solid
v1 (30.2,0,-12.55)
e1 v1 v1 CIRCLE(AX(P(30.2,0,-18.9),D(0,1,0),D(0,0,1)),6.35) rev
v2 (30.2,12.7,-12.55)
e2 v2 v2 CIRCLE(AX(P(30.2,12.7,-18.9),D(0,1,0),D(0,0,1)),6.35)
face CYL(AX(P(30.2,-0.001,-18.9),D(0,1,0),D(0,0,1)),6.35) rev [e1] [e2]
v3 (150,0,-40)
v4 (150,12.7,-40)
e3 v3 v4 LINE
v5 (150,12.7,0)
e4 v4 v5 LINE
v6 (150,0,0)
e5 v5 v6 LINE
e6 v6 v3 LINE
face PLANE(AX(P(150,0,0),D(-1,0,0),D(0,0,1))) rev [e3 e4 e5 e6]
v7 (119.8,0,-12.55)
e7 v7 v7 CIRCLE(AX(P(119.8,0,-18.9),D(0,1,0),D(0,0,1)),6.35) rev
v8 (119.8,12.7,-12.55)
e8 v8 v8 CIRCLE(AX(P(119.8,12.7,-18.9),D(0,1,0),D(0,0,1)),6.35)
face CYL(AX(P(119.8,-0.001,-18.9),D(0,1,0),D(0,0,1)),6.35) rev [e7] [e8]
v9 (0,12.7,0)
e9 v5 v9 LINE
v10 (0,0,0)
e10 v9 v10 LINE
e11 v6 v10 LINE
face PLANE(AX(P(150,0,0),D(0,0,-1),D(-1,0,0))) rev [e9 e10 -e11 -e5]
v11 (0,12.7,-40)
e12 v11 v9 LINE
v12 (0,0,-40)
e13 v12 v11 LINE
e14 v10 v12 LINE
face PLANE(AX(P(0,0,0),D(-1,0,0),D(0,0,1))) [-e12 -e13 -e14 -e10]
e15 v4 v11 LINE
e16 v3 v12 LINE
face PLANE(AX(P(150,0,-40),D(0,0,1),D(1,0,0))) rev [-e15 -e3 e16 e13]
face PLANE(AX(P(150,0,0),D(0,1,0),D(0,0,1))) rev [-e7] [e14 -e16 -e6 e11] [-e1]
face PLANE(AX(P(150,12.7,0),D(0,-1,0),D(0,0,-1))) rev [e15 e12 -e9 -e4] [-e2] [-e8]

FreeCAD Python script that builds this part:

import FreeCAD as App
import Part
import Sketcher
from FreeCAD import Vector

doc = App.newDocument("Part")
body = doc.addObject("PartDesign::Body", "Body")

# Sketch on YZ plane
sketch1 = doc.addObject("Sketcher::SketchObject", "Sketch")
body.addObject(sketch1)
sketch1.AttachmentSupport = (doc.YZ_Plane, [""])
sketch1.MapMode = "FlatFace"
sketch1.addGeometry(Part.LineSegment(Vector(12.7, 0, 0), Vector(0, 0, 0)), False)
sketch1.addGeometry(Part.LineSegment(Vector(0, 0, 0), Vector(0, -40, 0)), False)
sketch1.addGeometry(Part.LineSegment(Vector(0, -40, 0), Vector(12.7, -40, 0)), False)
sketch1.addGeometry(Part.LineSegment(Vector(12.7, -40, 0), Vector(12.7, 0, 0)), False)
sketch1.addConstraint(Sketcher.Constraint("Coincident", 0, 2, 1, 1))
sketch1.addConstraint(Sketcher.Constraint("Coincident", 1, 2, 2, 1))
sketch1.addConstraint(Sketcher.Constraint("Coincident", 2, 2, 3, 1))
sketch1.addConstraint(Sketcher.Constraint("Coincident", 3, 2, 0, 1))
sketch1.addConstraint(Sketcher.Constraint("Horizontal", 0))
sketch1.addConstraint(Sketcher.Constraint("Vertical", 1))
sketch1.addConstraint(Sketcher.Constraint("Horizontal", 2))
sketch1.addConstraint(Sketcher.Constraint("Vertical", 3))
sketch1.addConstraint(Sketcher.Constraint("Coincident", 0, 2, -1, 1))
sketch1.addConstraint(Sketcher.Constraint("DistanceY", 1, 2, 1, 1, 40.0))
sketch1.addConstraint(Sketcher.Constraint("DistanceX", 0, 2, 0, 1, 12.7))
pad1 = doc.addObject("PartDesign::Pad", "Pad")
body.addObject(pad1)
pad1.Profile = sketch1
pad1.Length = 150

# Sketch on XZ plane
sketch2 = doc.addObject("Sketcher::SketchObject", "Sketch001")
body.addObject(sketch2)
sketch2.AttachmentSupport = (doc.XZ_Plane, [""])
sketch2.MapMode = "FlatFace"
sketch2.AttachmentOffset = App.Placement(Vector(0, 0, -12.7), App.Rotation())
sketch2.addGeometry(Part.Circle(Vector(30.2, -18.9, 0), Vector(0, 0, 1), 6.35), False)
sketch2.addConstraint(Sketcher.Constraint("Diameter", 0, 12.7))
sketch2.addConstraint(Sketcher.Constraint("DistanceX", -1, 1, 0, 3, 30.2))
sketch2.addConstraint(Sketcher.Constraint("DistanceY", 0, 3, -1, 1, 18.9))
pocket1 = doc.addObject("PartDesign::Pocket", "Pocket")
body.addObject(pocket1)
pocket1.Profile = sketch2
pocket1.Type = "UpToFirst"
pocket1.Reversed = True

# Sketch on XZ plane
sketch3 = doc.addObject("Sketcher::SketchObject", "Sketch002")
body.addObject(sketch3)
sketch3.AttachmentSupport = (doc.XZ_Plane, [""])
sketch3.MapMode = "FlatFace"
sketch3.AttachmentOffset = App.Placement(Vector(0, 0, -12.7), App.Rotation())
sketch3.addGeometry(Part.Circle(Vector(119.8, -18.9, 0), Vector(0, 0, 1), 6.35), False)
sketch3.addConstraint(Sketcher.Constraint("Diameter", 0, 12.7))
sketch3.addConstraint(Sketcher.Constraint("DistanceX", -1, 1, 0, 3, 119.8))
sketch3.addConstraint(Sketcher.Constraint("DistanceY", 0, 3, -1, 1, 18.9))
pocket2 = doc.addObject("PartDesign::Pocket", "Pocket001")
body.addObject(pocket2)
pocket2.Profile = sketch3
pocket2.Type = "UpToFirst"
pocket2.Reversed = True

doc.recompute()
